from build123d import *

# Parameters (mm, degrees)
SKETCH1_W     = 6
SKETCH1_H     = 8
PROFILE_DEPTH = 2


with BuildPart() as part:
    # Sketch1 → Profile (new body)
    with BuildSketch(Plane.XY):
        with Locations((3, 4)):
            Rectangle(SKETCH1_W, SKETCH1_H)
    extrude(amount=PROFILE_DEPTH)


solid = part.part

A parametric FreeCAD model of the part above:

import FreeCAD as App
import Part
import Sketcher
Q = App.Units.Quantity

doc = App.newDocument("Part")
body = doc.addObject("PartDesign::Body", "Body")

# Sketch on XY plane
sketch1 = body.newObject("Sketcher::SketchObject", "Sketch")
sketch1.AttachmentSupport = (doc.getObject("XY_Plane"), [""])
sketch1.MapMode = "FlatFace"
sketch1.addGeometry(Part.LineSegment(App.Vector(0, 8, 0), App.Vector(0, 0, 0)), False)
sketch1.addGeometry(Part.LineSegment(App.Vector(0, 0, 0), App.Vector(6, 0, 0)), False)
sketch1.addGeometry(Part.LineSegment(App.Vector(6, 0, 0), App.Vector(6, 8, 0)), False)
sketch1.addGeometry(Part.LineSegment(App.Vector(6, 8, 0), App.Vector(0, 8, 0)), False)
sketch1.addConstraint(Sketcher.Constraint("Coincident", 0, 2, 1, 1))
sketch1.addConstraint(Sketcher.Constraint("Coincident", 1, 2, 2, 1))
sketch1.addConstraint(Sketcher.Constraint("Coincident", 2, 2, 3, 1))
sketch1.addConstraint(Sketcher.Constraint("Coincident", 3, 2, 0, 1))
sketch1.addConstraint(Sketcher.Constraint("Vertical", 0))
sketch1.addConstraint(Sketcher.Constraint("Horizontal", 1))
sketch1.addConstraint(Sketcher.Constraint("Vertical", 2))
sketch1.addConstraint(Sketcher.Constraint("Horizontal", 3))
sketch1.addConstraint(Sketcher.Constraint("Coincident", 0, 2, -1, 1))
sketch1.addConstraint(Sketcher.Constraint("DistanceX", 1, 1, 1, 2, Q("6 mm")))
sketch1.addConstraint(Sketcher.Constraint("DistanceY", 0, 2, 0, 1, Q("8 mm")))
pad1 = body.newObject("PartDesign::Pad", "Pad")
pad1.Profile = sketch1
pad1.Length = 2

doc.recompute()
